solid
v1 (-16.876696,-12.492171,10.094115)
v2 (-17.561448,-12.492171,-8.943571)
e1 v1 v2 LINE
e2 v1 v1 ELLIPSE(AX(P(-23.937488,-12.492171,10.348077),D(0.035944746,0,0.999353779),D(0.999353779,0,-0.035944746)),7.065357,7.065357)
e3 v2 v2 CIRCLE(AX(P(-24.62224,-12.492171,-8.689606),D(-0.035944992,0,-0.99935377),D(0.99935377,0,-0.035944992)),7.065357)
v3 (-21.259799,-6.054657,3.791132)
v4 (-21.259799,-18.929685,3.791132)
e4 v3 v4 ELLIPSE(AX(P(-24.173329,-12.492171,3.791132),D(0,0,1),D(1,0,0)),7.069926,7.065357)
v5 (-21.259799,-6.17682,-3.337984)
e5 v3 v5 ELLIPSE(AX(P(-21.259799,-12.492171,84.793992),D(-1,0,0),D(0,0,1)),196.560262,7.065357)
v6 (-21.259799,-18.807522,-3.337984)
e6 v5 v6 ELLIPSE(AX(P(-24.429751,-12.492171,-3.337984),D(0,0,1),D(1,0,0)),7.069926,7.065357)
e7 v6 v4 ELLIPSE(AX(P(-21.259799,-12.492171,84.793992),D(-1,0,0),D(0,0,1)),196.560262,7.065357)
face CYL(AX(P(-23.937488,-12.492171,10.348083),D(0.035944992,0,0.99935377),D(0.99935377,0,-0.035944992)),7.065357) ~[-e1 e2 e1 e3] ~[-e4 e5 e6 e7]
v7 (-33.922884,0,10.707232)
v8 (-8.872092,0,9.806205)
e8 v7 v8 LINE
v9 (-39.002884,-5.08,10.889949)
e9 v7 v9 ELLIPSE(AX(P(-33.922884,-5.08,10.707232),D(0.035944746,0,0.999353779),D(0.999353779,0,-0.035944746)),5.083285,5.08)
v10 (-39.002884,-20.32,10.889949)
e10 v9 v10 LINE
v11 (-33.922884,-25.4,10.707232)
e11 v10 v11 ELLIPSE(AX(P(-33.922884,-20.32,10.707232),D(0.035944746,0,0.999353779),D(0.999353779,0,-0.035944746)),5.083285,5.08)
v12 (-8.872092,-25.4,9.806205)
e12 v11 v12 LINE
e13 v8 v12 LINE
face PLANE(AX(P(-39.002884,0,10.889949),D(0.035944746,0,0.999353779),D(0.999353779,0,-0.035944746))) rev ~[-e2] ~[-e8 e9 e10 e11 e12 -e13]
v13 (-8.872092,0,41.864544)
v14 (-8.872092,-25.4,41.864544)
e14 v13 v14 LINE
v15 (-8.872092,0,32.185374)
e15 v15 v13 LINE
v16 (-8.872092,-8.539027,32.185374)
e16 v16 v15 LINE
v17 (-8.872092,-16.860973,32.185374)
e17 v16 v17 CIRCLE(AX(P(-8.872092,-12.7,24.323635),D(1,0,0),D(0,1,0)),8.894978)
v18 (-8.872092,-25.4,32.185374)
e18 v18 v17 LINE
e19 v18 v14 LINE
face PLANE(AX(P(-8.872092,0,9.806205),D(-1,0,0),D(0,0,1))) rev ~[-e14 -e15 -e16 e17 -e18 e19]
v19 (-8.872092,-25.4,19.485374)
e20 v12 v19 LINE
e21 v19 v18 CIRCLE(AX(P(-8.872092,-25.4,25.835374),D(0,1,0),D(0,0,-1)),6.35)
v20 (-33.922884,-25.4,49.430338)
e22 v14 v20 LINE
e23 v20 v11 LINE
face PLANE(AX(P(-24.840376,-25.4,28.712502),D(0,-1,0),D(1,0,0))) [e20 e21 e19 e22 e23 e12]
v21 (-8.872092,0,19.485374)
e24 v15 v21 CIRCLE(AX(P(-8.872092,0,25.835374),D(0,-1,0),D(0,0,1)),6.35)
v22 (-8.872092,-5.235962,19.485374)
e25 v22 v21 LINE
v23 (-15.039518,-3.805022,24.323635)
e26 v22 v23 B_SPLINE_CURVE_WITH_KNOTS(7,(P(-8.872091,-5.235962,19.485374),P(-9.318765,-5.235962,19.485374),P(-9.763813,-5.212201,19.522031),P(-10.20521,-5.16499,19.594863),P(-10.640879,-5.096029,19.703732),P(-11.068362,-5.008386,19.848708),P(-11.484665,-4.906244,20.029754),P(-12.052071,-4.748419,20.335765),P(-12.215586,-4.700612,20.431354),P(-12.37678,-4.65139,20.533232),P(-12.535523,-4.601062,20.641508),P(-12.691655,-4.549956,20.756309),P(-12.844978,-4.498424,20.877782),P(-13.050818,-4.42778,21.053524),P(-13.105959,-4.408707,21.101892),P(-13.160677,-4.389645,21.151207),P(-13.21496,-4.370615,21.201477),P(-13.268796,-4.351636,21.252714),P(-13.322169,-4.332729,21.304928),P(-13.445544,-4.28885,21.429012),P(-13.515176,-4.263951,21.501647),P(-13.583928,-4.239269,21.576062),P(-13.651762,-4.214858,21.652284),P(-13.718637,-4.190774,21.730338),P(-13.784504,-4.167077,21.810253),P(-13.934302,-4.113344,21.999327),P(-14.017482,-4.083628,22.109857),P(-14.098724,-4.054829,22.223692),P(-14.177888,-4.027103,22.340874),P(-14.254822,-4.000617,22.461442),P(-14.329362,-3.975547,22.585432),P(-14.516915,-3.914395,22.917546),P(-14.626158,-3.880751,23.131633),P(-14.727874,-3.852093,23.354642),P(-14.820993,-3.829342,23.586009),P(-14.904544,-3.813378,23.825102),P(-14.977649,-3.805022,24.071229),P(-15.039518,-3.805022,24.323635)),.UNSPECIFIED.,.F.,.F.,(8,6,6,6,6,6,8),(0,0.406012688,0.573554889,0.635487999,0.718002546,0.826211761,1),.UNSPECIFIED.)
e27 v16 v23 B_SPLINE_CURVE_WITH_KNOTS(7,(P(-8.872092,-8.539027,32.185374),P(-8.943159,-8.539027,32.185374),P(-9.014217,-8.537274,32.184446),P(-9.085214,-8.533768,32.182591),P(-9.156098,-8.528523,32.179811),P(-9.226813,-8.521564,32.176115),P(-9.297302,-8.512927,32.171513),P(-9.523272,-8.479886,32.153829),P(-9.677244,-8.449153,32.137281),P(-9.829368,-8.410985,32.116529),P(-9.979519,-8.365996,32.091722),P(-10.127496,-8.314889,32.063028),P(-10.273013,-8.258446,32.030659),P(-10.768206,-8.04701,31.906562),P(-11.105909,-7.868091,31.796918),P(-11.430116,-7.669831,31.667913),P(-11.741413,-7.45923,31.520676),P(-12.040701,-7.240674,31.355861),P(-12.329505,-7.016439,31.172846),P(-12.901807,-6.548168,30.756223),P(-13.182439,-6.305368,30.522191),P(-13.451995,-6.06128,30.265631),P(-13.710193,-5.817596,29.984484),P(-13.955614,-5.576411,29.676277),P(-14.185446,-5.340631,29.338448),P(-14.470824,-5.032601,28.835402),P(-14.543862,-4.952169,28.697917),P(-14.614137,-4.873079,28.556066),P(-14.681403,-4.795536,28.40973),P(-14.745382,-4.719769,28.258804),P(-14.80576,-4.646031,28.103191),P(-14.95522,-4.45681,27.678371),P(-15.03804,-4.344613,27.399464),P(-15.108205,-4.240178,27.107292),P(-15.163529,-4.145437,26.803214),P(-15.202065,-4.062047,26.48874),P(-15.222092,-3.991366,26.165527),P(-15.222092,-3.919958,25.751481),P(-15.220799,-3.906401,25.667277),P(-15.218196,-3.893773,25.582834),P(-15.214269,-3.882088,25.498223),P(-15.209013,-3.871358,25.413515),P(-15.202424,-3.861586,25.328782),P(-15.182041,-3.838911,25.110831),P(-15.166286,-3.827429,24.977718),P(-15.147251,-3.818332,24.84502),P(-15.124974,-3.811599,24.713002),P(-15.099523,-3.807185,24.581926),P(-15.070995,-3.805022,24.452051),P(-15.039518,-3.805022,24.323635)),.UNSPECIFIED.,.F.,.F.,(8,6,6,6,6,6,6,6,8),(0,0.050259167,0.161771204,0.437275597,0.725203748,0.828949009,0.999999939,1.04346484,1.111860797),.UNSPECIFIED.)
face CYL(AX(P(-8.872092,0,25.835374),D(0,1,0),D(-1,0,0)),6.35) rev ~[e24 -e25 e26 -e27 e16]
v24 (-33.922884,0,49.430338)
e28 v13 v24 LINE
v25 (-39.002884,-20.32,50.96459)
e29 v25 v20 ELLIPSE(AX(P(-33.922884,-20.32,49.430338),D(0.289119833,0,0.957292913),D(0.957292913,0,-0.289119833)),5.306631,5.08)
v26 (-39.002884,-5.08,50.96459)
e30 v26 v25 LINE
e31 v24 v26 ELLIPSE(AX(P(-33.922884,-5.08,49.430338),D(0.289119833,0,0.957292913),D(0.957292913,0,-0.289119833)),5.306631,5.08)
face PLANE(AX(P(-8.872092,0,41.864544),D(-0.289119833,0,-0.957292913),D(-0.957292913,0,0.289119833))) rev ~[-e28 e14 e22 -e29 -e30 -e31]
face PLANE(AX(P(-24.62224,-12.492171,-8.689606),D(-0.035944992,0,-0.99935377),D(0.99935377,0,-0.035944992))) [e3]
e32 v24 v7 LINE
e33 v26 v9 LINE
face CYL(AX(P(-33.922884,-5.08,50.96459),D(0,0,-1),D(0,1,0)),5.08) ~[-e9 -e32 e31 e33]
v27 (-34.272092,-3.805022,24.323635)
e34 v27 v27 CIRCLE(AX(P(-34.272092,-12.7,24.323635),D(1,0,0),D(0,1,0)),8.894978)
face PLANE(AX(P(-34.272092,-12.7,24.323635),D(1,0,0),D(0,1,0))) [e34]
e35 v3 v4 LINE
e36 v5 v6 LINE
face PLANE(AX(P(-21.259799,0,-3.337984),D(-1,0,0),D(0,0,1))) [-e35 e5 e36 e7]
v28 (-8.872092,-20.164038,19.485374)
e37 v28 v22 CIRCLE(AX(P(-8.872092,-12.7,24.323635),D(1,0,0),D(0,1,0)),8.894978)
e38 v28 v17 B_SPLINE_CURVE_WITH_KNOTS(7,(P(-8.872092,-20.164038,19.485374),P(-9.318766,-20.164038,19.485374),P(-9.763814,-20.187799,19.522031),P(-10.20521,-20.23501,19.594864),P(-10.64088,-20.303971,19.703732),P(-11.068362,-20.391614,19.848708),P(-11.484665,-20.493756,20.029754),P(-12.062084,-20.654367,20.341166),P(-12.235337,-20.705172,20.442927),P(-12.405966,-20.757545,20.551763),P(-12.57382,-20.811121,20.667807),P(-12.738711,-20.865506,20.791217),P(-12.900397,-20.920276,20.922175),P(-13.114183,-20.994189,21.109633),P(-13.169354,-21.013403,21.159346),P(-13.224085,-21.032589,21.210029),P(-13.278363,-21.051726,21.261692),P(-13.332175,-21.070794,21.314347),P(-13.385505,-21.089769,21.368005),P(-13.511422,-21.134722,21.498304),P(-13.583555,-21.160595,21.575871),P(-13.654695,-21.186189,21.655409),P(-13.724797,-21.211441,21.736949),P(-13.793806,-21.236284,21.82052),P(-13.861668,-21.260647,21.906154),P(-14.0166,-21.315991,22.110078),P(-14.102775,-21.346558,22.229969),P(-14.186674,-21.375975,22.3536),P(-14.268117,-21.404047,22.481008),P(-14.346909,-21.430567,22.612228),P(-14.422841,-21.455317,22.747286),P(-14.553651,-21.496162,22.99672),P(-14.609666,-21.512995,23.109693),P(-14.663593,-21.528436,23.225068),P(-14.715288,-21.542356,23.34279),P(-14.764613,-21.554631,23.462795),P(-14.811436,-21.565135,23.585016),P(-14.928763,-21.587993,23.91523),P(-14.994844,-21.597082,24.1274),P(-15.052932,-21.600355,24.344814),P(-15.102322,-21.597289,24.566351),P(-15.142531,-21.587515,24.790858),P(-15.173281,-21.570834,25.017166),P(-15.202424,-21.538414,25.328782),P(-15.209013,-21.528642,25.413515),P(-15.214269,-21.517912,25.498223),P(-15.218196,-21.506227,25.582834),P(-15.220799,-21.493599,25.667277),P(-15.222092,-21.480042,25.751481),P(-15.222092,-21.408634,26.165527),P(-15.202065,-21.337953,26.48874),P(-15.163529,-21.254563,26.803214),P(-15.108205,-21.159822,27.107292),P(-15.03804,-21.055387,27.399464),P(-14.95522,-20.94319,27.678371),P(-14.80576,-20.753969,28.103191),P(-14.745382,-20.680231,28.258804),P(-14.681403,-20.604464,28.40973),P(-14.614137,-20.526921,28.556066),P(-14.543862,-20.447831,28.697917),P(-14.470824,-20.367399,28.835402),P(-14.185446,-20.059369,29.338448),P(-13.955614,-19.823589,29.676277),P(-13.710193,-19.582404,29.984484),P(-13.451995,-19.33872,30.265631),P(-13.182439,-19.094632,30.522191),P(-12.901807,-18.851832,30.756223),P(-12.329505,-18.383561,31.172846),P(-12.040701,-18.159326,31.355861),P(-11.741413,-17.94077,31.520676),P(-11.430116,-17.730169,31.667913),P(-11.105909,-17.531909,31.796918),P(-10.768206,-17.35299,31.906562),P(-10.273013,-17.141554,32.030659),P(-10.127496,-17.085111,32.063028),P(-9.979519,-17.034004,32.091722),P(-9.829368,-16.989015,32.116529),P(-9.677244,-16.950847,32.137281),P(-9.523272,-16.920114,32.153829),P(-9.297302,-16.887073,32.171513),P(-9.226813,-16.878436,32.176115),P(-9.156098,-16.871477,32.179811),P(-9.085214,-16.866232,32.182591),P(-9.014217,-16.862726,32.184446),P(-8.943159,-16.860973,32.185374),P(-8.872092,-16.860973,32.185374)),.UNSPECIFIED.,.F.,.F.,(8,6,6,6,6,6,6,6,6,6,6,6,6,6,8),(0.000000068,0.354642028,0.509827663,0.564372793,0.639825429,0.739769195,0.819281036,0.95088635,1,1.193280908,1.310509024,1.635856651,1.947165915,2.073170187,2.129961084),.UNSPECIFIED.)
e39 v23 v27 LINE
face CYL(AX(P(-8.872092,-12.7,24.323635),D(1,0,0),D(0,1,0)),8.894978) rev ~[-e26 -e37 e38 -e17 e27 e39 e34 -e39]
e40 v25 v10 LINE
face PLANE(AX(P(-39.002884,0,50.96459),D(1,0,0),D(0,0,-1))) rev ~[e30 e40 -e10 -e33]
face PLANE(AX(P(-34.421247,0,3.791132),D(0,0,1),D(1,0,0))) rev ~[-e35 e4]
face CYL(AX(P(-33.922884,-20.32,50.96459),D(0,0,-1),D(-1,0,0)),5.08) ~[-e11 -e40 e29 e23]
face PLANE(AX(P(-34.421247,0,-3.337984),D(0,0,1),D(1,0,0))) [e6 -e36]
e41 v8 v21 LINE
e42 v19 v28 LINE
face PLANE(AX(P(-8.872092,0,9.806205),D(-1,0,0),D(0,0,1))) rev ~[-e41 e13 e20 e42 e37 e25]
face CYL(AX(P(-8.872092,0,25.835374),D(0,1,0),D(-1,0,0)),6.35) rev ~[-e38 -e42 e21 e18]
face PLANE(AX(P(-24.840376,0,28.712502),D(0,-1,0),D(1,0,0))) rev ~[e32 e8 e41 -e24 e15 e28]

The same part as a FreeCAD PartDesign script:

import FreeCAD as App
import Part
import Sketcher
from FreeCAD import Vector
Q = App.Units.Quantity


def edges_at(feature, points):
    """Names of the edges that pass closest to the given points."""
    edges = feature.Shape.Edges
    near = lambda p: min(range(len(edges)), key=lambda i: edges[i].distToShape(Part.Vertex(*p))[0])
    return sorted({f"Edge{near(p) + 1}" for p in points})

doc = App.newDocument("Part")
body = doc.addObject("PartDesign::Body", "Body")

# Sketch on XZ plane
sketch1 = body.newObject("Sketcher::SketchObject", "Sketch")
sketch1.AttachmentSupport = (doc.getObject("XZ_Plane"), [""])
sketch1.MapMode = "FlatFace"
sketch1.addGeometry([
    Part.LineSegment(Vector(-9, 42, 0), Vector(-39, 51, 0)),
    Part.LineSegment(Vector(-39, 51, 0), Vector(-39, 11, 0)),
    Part.LineSegment(Vector(-39, 11, 0), Vector(-9, 10, 0)),
    Part.LineSegment(Vector(-9, 10, 0), Vector(-9, 42, 0)),
], False)
sketch1.addConstraint([
    Sketcher.Constraint("Coincident", 0, 2, 1, 1),
    Sketcher.Constraint("Coincident", 1, 2, 2, 1),
    Sketcher.Constraint("Coincident", 2, 2, 3, 1),
    Sketcher.Constraint("Coincident", 3, 2, 0, 1),
    Sketcher.Constraint("Vertical", 1),
    Sketcher.Constraint("Vertical", 3),
    Sketcher.Constraint("DistanceY", 1, 2, 1, 1, 40.074641),
    Sketcher.Constraint("DistanceY", 3, 1, 3, 2, 32.058339),
    Sketcher.Constraint("DistanceY", -1, 1, 0, 2, 50.96459),
    Sketcher.Constraint("DistanceX", 1, 2, 2, 2, 30.130792),
    Sketcher.Constraint("Distance", 0, 31.474997),
    Sketcher.Constraint("DistanceX", 0, 2, -1, 1, 39.002884),
])
pad1 = body.newObject("PartDesign::Pad", "Pad")
pad1.Profile = sketch1
pad1.Length = Q("1 in")

# Sketch on YZ plane
sketch2 = body.newObject("Sketcher::SketchObject", "Sketch001")
sketch2.AttachmentSupport = (doc.getObject("YZ_Plane"), [""])
sketch2.MapMode = "FlatFace"
sketch2.AttachmentOffset = App.Placement(Vector(0, 0, -8.872092), App.Rotation())
sketch2.addGeometry(Part.Circle(Vector(-13, 24, 0), Vector(0, 0, 1), 9), False)
sketch2.addConstraint([
    Sketcher.Constraint("DistanceX", 0, 3, -1, 1, Q("0.5 in")),
    Sketcher.Constraint("Diameter", 0, 17.789956),
    Sketcher.Constraint("DistanceY", -1, 1, 0, 3, 24.323635),
])
pad2 = body.newObject("PartDesign::Pad", "Pad001")
pad2.Profile = sketch2
pad2.Length = Q("0.5 in")
pad2.Reversed = True

# Sketch on YZ plane
sketch3 = body.newObject("Sketcher::SketchObject", "Sketch002")
sketch3.AttachmentSupport = (doc.getObject("YZ_Plane"), [""])
sketch3.MapMode = "FlatFace"
sketch3.AttachmentOffset = App.Placement(Vector(0, 0, -8.872092), App.Rotation())
sketch3.addGeometry(Part.Circle(Vector(-13, 24, 0), Vector(0, 0, 1), 9), False)
sketch3.addConstraint([
    Sketcher.Constraint("DistanceX", 0, 3, -1, 1, Q("0.5 in")),
    Sketcher.Constraint("Diameter", 0, 17.789956),
    Sketcher.Constraint("DistanceY", -1, 1, 0, 3, 24.323635),
])
pocket1 = body.newObject("PartDesign::Pocket", "Pocket")
pocket1.Profile = sketch3
pocket1.Length = Q("1 in")

# Sketch on an angled plane
sketch4 = body.newObject("Sketcher::SketchObject", "Sketch003")
sketch4.Placement = App.Placement(Vector(0.340791, 0, 9.474836), App.Rotation(Vector(0.99935377, 0, -0.035944992), Vector(0, -1, 0), Vector(-0.035944992, 0, -0.99935377), "ZXY"))
sketch4.addGeometry(Part.Circle(Vector(-24, 12, 0), Vector(0, 0, 1), 7), False)
sketch4.addConstraint([
    Sketcher.Constraint("Diameter", 0, 14.130714),
    Sketcher.Constraint("DistanceX", 0, 3, -1, 1, 24.293978),
    Sketcher.Constraint("DistanceY", -1, 1, 0, 3, 12.492171),
])
pad3 = body.newObject("PartDesign::Pad", "Pad002")
pad3.Profile = sketch4
pad3.Length = Q("0.75 in")

# Sketch on XZ plane
sketch5 = body.newObject("Sketcher::SketchObject", "Sketch004")
sketch5.AttachmentSupport = (doc.getObject("XZ_Plane"), [""])
sketch5.MapMode = "FlatFace"
sketch5.addGeometry([
    Part.LineSegment(Vector(-34, 4, 0), Vector(-34, -3, 0)),
    Part.LineSegment(Vector(-34, -3, 0), Vector(-21, -3, 0)),
    Part.LineSegment(Vector(-21, -3, 0), Vector(-21, 4, 0)),
    Part.LineSegment(Vector(-21, 4, 0), Vector(-34, 4, 0)),
], False)
sketch5.addConstraint([
    Sketcher.Constraint("Coincident", 0, 2, 1, 1),
    Sketcher.Constraint("Coincident", 1, 2, 2, 1),
    Sketcher.Constraint("Coincident", 2, 2, 3, 1),
    Sketcher.Constraint("Coincident", 3, 2, 0, 1),
    Sketcher.Constraint("Vertical", 0),
    Sketcher.Constraint("Horizontal", 1),
    Sketcher.Constraint("Vertical", 2),
    Sketcher.Constraint("Horizontal", 3),
    Sketcher.Constraint("DistanceX", 1, 2, -1, 1, Q("0.837 in")),
    Sketcher.Constraint("DistanceX", 1, 1, 1, 2, 13.161447),
    Sketcher.Constraint("DistanceY", 0, 2, 0, 1, 7.129116),
    Sketcher.Constraint("DistanceY", 0, 2, -1, 1, 3.337984),
])
pocket2 = body.newObject("PartDesign::Pocket", "Pocket001")
pocket2.Profile = sketch5
pocket2.Type = "ThroughAll"
pocket2.Reversed = True

# Sketch on XZ plane
sketch6 = body.newObject("Sketcher::SketchObject", "Sketch005")
sketch6.AttachmentSupport = (doc.getObject("XZ_Plane"), [""])
sketch6.MapMode = "FlatFace"
sketch6.addGeometry(Part.Circle(Vector(-9, 26, 0), Vector(0, 0, 1), 6), False)
sketch6.addConstraint([
    Sketcher.Constraint("Diameter", 0, Q("0.5 in")),
    Sketcher.Constraint("DistanceX", 0, 3, -1, 1, 8.872092),
    Sketcher.Constraint("DistanceY", -1, 1, 0, 3, 25.835374),
])
pocket3 = body.newObject("PartDesign::Pocket", "Pocket002")
pocket3.Profile = sketch6
pocket3.Type = "ThroughAll"
pocket3.Reversed = True
doc.recompute()

fillet = body.newObject("PartDesign::Fillet", "Fillet")
fillet.Base = (pocket3, edges_at(pocket3, [(-39.003, 0, 30.927)]))
fillet.Radius = Q("0.2 in")
doc.recompute()

fillet2 = body.newObject("PartDesign::Fillet", "Fillet001")
fillet2.Base = (fillet, edges_at(fillet, [(-39.003, -25.4, 30.927)]))
fillet2.Radius = Q("0.2 in")

doc.recompute()
